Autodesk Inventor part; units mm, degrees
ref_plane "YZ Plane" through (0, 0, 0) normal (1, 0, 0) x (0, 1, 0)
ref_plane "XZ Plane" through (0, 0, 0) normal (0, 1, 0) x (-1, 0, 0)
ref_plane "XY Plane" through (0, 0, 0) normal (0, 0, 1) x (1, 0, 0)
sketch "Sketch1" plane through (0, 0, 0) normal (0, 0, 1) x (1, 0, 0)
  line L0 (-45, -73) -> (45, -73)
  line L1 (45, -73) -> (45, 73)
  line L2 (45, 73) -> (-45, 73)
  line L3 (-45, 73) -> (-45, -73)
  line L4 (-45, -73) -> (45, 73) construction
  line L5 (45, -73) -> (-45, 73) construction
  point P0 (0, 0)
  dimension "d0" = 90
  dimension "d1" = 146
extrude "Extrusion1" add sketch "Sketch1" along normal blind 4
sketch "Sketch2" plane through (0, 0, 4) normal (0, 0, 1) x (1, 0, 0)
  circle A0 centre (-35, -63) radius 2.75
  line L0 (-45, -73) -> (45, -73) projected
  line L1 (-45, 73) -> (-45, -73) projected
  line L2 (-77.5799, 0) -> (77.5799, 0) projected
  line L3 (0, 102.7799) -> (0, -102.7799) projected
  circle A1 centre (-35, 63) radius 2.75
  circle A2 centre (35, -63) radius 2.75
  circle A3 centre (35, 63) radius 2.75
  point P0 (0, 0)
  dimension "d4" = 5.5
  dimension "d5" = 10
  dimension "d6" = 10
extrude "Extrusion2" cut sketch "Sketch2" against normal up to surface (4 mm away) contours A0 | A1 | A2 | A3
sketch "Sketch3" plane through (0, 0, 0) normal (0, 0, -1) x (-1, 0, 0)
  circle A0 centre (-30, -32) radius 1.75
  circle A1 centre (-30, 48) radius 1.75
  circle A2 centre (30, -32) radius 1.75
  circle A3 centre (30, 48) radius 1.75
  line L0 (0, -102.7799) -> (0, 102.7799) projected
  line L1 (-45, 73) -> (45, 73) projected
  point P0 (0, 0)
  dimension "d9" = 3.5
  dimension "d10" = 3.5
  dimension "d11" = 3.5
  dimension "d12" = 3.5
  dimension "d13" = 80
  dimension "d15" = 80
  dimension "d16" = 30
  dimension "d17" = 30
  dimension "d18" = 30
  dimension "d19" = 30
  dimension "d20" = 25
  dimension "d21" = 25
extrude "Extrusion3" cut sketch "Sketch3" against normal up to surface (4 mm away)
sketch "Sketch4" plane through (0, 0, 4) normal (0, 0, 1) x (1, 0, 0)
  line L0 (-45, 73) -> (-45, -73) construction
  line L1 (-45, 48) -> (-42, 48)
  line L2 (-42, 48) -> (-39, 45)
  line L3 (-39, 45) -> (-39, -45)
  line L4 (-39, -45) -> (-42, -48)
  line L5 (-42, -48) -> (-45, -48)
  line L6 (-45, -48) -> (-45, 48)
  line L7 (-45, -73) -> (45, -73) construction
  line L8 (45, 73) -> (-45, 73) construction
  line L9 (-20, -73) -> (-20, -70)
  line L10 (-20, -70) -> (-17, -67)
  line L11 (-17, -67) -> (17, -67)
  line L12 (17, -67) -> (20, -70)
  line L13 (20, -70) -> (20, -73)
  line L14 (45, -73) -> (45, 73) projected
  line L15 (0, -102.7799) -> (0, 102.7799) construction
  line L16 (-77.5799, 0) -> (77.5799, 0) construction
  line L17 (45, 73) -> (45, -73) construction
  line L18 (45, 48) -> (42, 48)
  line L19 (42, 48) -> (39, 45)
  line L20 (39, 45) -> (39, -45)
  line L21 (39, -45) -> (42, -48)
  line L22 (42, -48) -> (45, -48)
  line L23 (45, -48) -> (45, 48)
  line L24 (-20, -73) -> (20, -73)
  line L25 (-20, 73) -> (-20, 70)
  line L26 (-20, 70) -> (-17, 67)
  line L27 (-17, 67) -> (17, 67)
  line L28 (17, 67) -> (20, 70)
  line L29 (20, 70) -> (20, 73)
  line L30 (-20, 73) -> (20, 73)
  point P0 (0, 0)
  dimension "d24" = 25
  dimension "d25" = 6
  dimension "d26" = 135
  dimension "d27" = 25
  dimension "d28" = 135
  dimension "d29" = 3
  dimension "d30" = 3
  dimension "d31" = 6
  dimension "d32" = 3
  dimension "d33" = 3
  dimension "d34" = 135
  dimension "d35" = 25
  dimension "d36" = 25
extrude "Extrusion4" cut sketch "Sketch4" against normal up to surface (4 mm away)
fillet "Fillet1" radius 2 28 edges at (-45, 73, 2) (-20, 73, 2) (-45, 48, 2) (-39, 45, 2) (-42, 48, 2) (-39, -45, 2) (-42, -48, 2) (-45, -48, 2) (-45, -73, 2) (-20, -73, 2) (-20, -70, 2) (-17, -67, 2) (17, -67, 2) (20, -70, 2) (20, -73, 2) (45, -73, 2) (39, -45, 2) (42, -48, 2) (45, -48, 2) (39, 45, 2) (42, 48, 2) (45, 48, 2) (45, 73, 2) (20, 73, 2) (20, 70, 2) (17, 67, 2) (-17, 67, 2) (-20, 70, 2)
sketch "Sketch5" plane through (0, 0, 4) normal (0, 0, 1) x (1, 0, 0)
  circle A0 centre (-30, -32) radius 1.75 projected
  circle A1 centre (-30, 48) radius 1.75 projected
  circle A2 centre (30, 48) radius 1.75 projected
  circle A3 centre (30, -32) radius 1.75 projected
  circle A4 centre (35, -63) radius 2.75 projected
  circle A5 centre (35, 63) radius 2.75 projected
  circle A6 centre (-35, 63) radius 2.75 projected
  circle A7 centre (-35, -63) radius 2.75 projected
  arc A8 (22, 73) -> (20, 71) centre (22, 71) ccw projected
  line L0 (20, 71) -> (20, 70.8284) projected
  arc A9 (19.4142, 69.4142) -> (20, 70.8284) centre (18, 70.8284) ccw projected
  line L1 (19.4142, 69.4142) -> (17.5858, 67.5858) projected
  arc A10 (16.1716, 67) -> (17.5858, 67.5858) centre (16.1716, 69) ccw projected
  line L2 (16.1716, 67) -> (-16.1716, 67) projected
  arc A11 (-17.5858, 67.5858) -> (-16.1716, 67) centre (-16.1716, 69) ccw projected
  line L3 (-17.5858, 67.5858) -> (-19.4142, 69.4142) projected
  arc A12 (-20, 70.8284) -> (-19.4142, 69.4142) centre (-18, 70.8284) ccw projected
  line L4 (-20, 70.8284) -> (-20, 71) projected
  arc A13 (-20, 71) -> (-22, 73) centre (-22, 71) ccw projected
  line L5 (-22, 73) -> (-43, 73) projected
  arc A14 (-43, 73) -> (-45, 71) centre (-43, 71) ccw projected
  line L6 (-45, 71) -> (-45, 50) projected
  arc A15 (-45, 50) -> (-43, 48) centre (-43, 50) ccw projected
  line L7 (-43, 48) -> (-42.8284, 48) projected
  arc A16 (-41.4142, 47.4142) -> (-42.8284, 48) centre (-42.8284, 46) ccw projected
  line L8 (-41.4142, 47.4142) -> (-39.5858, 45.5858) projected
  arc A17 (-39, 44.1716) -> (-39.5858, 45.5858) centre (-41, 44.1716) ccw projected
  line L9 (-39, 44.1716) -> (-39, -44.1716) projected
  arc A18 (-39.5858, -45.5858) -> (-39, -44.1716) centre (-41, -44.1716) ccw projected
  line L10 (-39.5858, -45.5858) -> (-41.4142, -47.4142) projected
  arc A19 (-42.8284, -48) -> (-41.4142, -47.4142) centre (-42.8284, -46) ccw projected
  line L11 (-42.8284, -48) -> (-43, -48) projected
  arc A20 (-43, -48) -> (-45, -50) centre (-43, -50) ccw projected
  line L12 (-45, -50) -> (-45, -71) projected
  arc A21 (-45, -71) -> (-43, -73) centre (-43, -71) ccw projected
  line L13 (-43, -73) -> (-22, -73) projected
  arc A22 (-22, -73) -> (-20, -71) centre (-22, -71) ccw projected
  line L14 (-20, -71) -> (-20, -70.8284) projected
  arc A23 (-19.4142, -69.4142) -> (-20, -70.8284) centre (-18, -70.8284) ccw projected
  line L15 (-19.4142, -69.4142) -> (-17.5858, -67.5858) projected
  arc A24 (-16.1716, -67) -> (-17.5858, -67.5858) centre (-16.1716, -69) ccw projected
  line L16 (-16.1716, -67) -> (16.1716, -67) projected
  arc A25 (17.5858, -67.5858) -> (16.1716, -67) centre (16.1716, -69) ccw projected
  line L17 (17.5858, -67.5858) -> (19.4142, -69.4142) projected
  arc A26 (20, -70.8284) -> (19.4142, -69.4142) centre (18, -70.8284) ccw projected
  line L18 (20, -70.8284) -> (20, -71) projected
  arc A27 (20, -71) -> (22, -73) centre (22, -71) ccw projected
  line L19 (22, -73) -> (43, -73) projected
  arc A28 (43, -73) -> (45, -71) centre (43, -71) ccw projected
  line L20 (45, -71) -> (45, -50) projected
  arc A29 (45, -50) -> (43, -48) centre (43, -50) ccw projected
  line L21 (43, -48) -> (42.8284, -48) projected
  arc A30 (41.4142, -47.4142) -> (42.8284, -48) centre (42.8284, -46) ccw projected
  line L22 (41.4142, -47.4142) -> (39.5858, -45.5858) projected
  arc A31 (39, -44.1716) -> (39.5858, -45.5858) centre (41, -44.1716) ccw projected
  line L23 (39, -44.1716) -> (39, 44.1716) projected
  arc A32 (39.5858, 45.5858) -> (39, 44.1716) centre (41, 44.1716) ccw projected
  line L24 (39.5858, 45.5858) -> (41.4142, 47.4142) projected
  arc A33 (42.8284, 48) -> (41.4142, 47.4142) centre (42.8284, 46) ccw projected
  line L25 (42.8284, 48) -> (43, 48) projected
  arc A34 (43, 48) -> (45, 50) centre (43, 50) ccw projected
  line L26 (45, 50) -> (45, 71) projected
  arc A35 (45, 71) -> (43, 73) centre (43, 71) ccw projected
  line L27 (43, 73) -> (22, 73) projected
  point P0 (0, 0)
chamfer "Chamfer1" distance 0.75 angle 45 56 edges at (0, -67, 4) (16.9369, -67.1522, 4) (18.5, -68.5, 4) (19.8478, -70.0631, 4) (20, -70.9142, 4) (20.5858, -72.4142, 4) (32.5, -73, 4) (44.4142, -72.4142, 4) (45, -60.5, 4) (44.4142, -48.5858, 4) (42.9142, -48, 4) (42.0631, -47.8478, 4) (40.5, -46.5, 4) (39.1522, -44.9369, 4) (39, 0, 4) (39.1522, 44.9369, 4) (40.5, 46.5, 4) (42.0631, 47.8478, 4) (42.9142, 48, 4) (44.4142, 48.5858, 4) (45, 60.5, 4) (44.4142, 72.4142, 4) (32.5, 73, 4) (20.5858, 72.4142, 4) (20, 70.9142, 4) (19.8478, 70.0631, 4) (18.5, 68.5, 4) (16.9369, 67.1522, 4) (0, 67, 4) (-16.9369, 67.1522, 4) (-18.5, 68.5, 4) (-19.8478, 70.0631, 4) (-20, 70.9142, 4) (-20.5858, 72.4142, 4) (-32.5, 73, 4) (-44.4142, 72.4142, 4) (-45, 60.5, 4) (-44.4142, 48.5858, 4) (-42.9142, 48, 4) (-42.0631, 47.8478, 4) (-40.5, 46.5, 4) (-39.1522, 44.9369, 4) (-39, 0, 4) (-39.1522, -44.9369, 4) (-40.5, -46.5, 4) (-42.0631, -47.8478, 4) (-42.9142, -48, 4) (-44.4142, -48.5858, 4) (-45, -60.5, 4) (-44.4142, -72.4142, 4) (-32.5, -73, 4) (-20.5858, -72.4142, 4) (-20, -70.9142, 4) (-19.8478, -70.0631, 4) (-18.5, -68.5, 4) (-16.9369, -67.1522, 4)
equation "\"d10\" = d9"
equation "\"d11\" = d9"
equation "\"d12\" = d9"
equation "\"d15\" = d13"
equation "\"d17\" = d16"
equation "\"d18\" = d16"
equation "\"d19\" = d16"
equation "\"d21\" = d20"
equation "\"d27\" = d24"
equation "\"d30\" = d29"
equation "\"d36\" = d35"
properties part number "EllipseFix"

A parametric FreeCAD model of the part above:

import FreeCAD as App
import Part
import Sketcher
Q = App.Units.Quantity


def edges_at(feature, points):
    """Names of the edges that pass closest to the given points."""
    edges = feature.Shape.Edges
    near = lambda p: min(range(len(edges)), key=lambda i: edges[i].distToShape(Part.Vertex(*p))[0])
    return sorted({f"Edge{near(p) + 1}" for p in points})

doc = App.newDocument("Part")
params = doc.addObject("Spreadsheet::Sheet", "Params")
for row, (alias, value) in enumerate([
    ("sketch1_width", "90 mm"),
    ("sketch1_height", "146 mm"),
    ("pad1_length", "4 mm"),
    ("sketch2_diameter", "5.5 mm"),
    ("pocket1_length", "4 mm"),
    ("sketch3_diameter", "3.5 mm"),
    ("pocket2_length", "4 mm"),
    ("sketch4_width", "3 mm"),
    ("sketch4_width2", "40 mm"),
    ("sketch4_height", "96 mm"),
    ("pocket3_length", "4 mm"),
    ("fillet_radius", "2 mm"),
    ("chamfer_size", "0.75 mm"),
], start=1):
    params.set(f"A{row}", alias)
    params.set(f"B{row}", "=" + value)
    params.setAlias(f"B{row}", alias)

body = doc.addObject("PartDesign::Body", "Body")

# Sketch on XY plane
sketch1 = body.newObject("Sketcher::SketchObject", "Sketch")
sketch1.AttachmentSupport = (doc.getObject("XY_Plane"), [""])
sketch1.MapMode = "FlatFace"
sketch1.addGeometry([
    Part.LineSegment(App.Vector(-45, 73, 0), App.Vector(-45, -73, 0)),
    Part.LineSegment(App.Vector(-45, -73, 0), App.Vector(45, -73, 0)),
    Part.LineSegment(App.Vector(45, -73, 0), App.Vector(45, 73, 0)),
    Part.LineSegment(App.Vector(45, 73, 0), App.Vector(-45, 73, 0)),
], False)
sketch1.addConstraint([
    Sketcher.Constraint("Coincident", 0, 2, 1, 1),
    Sketcher.Constraint("Coincident", 1, 2, 2, 1),
    Sketcher.Constraint("Coincident", 2, 2, 3, 1),
    Sketcher.Constraint("Coincident", 3, 2, 0, 1),
    Sketcher.Constraint("Vertical", 0),
    Sketcher.Constraint("Horizontal", 1),
    Sketcher.Constraint("Vertical", 2),
    Sketcher.Constraint("Horizontal", 3),
    Sketcher.Constraint("Symmetric", 0, 2, 2, 2, -1, 1),
    Sketcher.Constraint("DistanceX", 1, 1, 1, 2, Q("90 mm")),
    Sketcher.Constraint("DistanceY", 0, 2, 0, 1, Q("146 mm")),
])
sketch1.setExpression("Constraints[9]", "Params.sketch1_width")
sketch1.setExpression("Constraints[10]", "Params.sketch1_height")
pad1 = body.newObject("PartDesign::Pad", "Pad")
pad1.Profile = sketch1
pad1.setExpression("Length", "Params.pad1_length")

# Sketch on XY plane
sketch2 = body.newObject("Sketcher::SketchObject", "Sketch001")
sketch2.AttachmentSupport = (doc.getObject("XY_Plane"), [""])
sketch2.MapMode = "FlatFace"
sketch2.AttachmentOffset = App.Placement(App.Vector(0, 0, 4), App.Rotation())
sketch2.addGeometry([
    Part.Circle(App.Vector(-35, -63, 0), App.Vector(0, 0, 1), 2.75),
    Part.Circle(App.Vector(-35, 63, 0), App.Vector(0, 0, 1), 2.75),
    Part.Circle(App.Vector(35, -63, 0), App.Vector(0, 0, 1), 2.75),
    Part.Circle(App.Vector(35, 63, 0), App.Vector(0, 0, 1), 2.75),
], False)
sketch2.addConstraint([
    Sketcher.Constraint("Equal", 0, 1),
    Sketcher.Constraint("Equal", 1, 2),
    Sketcher.Constraint("Equal", 2, 3),
    Sketcher.Constraint("Symmetric", 1, 3, 2, 3, -1, 1),
    Sketcher.Constraint("Symmetric", 0, 3, 3, 3, -1, 1),
    Sketcher.Constraint("Symmetric", 0, 3, 2, 3, -2),
    Sketcher.Constraint("Diameter", 0, Q("5.5 mm")),
    Sketcher.Constraint("DistanceX", 0, 3, -1, 1, Q("35 mm")),
    Sketcher.Constraint("DistanceY", 0, 3, -1, 1, Q("63 mm")),
])
sketch2.setExpression("Constraints[6]", "Params.sketch2_diameter")
pocket1 = body.newObject("PartDesign::Pocket", "Pocket")
pocket1.Profile = sketch2
pocket1.setExpression("Length", "Params.pocket1_length")

# Sketch on XY plane
sketch3 = body.newObject("Sketcher::SketchObject", "Sketch002")
sketch3.AttachmentSupport = (doc.getObject("XY_Plane"), [""])
sketch3.MapMode = "FlatFace"
sketch3.addGeometry([
    Part.Circle(App.Vector(30, -32, 0), App.Vector(0, 0, 1), 1.75),
    Part.Circle(App.Vector(30, 48, 0), App.Vector(0, 0, 1), 1.75),
    Part.Circle(App.Vector(-30, -32, 0), App.Vector(0, 0, 1), 1.75),
    Part.Circle(App.Vector(-30, 48, 0), App.Vector(0, 0, 1), 1.75),
], False)
sketch3.addConstraint([
    Sketcher.Constraint("Equal", 0, 1),
    Sketcher.Constraint("Equal", 1, 2),
    Sketcher.Constraint("Equal", 2, 3),
    Sketcher.Constraint("Symmetric", 0, 3, 2, 3, -2),
    Sketcher.Constraint("Symmetric", 1, 3, 3, 3, -2),
    Sketcher.Constraint("Vertical", 0, 3, 1, 3),
    Sketcher.Constraint("Diameter", 0, Q("3.5 mm")),
    Sketcher.Constraint("DistanceX", -1, 1, 0, 3, Q("30 mm")),
    Sketcher.Constraint("DistanceY", 0, 3, 1, 3, Q("80 mm")),
    Sketcher.Constraint("DistanceY", 0, 3, -1, 1, Q("32 mm")),
])
sketch3.setExpression("Constraints[6]", "Params.sketch3_diameter")
pocket2 = body.newObject("PartDesign::Pocket", "Pocket001")
pocket2.Profile = sketch3
pocket2.setExpression("Length", "Params.pocket2_length")
pocket2.Reversed = True

# Sketch on XY plane
sketch4 = body.newObject("Sketcher::SketchObject", "Sketch003")
sketch4.AttachmentSupport = (doc.getObject("XY_Plane"), [""])
sketch4.MapMode = "FlatFace"
sketch4.AttachmentOffset = App.Placement(App.Vector(0, 0, 4), App.Rotation())
sketch4.addGeometry([
    Part.LineSegment(App.Vector(-42, 48, 0), App.Vector(-45, 48, 0)),  # 0
    Part.LineSegment(App.Vector(-45, 48, 0), App.Vector(-45, -48, 0)),  # 1
    Part.LineSegment(App.Vector(-45, -48, 0), App.Vector(-42, -48, 0)),  # 2
    Part.LineSegment(App.Vector(-42, -48, 0), App.Vector(-39, -45, 0)),  # 3
    Part.LineSegment(App.Vector(-39, -45, 0), App.Vector(-39, 45, 0)),  # 4
    Part.LineSegment(App.Vector(-39, 45, 0), App.Vector(-42, 48, 0)),  # 5
    Part.LineSegment(App.Vector(-20, -70, 0), App.Vector(-20, -73, 0)),  # 6
    Part.LineSegment(App.Vector(-20, -73, 0), App.Vector(20, -73, 0)),  # 7
    Part.LineSegment(App.Vector(20, -73, 0), App.Vector(20, -70, 0)),  # 8
    Part.LineSegment(App.Vector(20, -70, 0), App.Vector(17, -67, 0)),  # 9
    Part.LineSegment(App.Vector(17, -67, 0), App.Vector(-17, -67, 0)),  # 10
    Part.LineSegment(App.Vector(-17, -67, 0), App.Vector(-20, -70, 0)),  # 11
    Part.LineSegment(App.Vector(42, -48, 0), App.Vector(45, -48, 0)),  # 12
    Part.LineSegment(App.Vector(45, -48, 0), App.Vector(45, 48, 0)),  # 13
    Part.LineSegment(App.Vector(45, 48, 0), App.Vector(42, 48, 0)),  # 14
    Part.LineSegment(App.Vector(42, 48, 0), App.Vector(39, 45, 0)),  # 15
    Part.LineSegment(App.Vector(39, 45, 0), App.Vector(39, -45, 0)),  # 16
    Part.LineSegment(App.Vector(39, -45, 0), App.Vector(42, -48, 0)),  # 17
    Part.LineSegment(App.Vector(20, 73, 0), App.Vector(-20, 73, 0)),  # 18
    Part.LineSegment(App.Vector(-20, 73, 0), App.Vector(-20, 70, 0)),  # 19
    Part.LineSegment(App.Vector(-20, 70, 0), App.Vector(-17, 67, 0)),  # 20
    Part.LineSegment(App.Vector(-17, 67, 0), App.Vector(17, 67, 0)),  # 21
    Part.LineSegment(App.Vector(17, 67, 0), App.Vector(20, 70, 0)),  # 22
    Part.LineSegment(App.Vector(20, 70, 0), App.Vector(20, 73, 0)),  # 23
], False)
sketch4.addConstraint([
    Sketcher.Constraint("Coincident", 0, 2, 1, 1),
    Sketcher.Constraint("Coincident", 1, 2, 2, 1),
    Sketcher.Constraint("Coincident", 2, 2, 3, 1),
    Sketcher.Constraint("Coincident", 3, 2, 4, 1),
    Sketcher.Constraint("Coincident", 4, 2, 5, 1),
    Sketcher.Constraint("Coincident", 5, 2, 0, 1),
    Sketcher.Constraint("Coincident", 6, 2, 7, 1),
    Sketcher.Constraint("Coincident", 7, 2, 8, 1),
    Sketcher.Constraint("Coincident", 8, 2, 9, 1),
    Sketcher.Constraint("Coincident", 9, 2, 10, 1),
    Sketcher.Constraint("Coincident", 10, 2, 11, 1),
    Sketcher.Constraint("Coincident", 11, 2, 6, 1),
    Sketcher.Constraint("Coincident", 12, 2, 13, 1),
    Sketcher.Constraint("Coincident", 13, 2, 14, 1),
    Sketcher.Constraint("Coincident", 14, 2, 15, 1),
    Sketcher.Constraint("Coincident", 15, 2, 16, 1),
    Sketcher.Constraint("Coincident", 16, 2, 17, 1),
    Sketcher.Constraint("Coincident", 17, 2, 12, 1),
    Sketcher.Constraint("Coincident", 18, 2, 19, 1),
    Sketcher.Constraint("Coincident", 19, 2, 20, 1),
    Sketcher.Constraint("Coincident", 20, 2, 21, 1),
    Sketcher.Constraint("Coincident", 21, 2, 22, 1),
    Sketcher.Constraint("Coincident", 22, 2, 23, 1),
    Sketcher.Constraint("Coincident", 23, 2, 18, 1),
    Sketcher.Constraint("Horizontal", 0),
    Sketcher.Constraint("Vertical", 1),
    Sketcher.Constraint("Horizontal", 2),
    Sketcher.Constraint("Vertical", 4),
    Sketcher.Constraint("Vertical", 6),
    Sketcher.Constraint("Horizontal", 7),
    Sketcher.Constraint("Vertical", 8),
    Sketcher.Constraint("Horizontal", 10),
    Sketcher.Constraint("Horizontal", 12),
    Sketcher.Constraint("Vertical", 13),
    Sketcher.Constraint("Horizontal", 14),
    Sketcher.Constraint("Vertical", 16),
    Sketcher.Constraint("Horizontal", 18),
    Sketcher.Constraint("Vertical", 19),
    Sketcher.Constraint("Horizontal", 21),
    Sketcher.Constraint("Vertical", 23),
    Sketcher.Constraint("Symmetric", 0, 2, 12, 2, -1, 1),
    Sketcher.Constraint("Symmetric", 2, 2, 14, 2, -1, 1),
    Sketcher.Constraint("Symmetric", 3, 2, 15, 2, -1, 1),
    Sketcher.Constraint("Symmetric", 7, 2, 18, 2, -1, 1),
    Sketcher.Constraint("Symmetric", 9, 2, 20, 2, -1, 1),
    Sketcher.Constraint("Symmetric", 11, 2, 22, 2, -1, 1),
    Sketcher.Constraint("Symmetric", 8, 2, 11, 2, -2),
    Sketcher.Constraint("Symmetric", 5, 2, 14, 2, -2),
    Sketcher.Constraint("Perpendicular", 3, 5),
    Sketcher.Constraint("Parallel", 5, 9),
    Sketcher.Constraint("Perpendicular", 9, 11),
    Sketcher.Constraint("Perpendicular", 15, 17),
    Sketcher.Constraint("Parallel", 17, 20),
    Sketcher.Constraint("Perpendicular", 20, 22),
    Sketcher.Constraint("Horizontal", 4, 2, 15, 2),
    Sketcher.Constraint("Horizontal", 3, 2, 16, 2),
    Sketcher.Constraint("Equal", 14, 6),
    Sketcher.Constraint("Equal", 5, 9),
    Sketcher.Constraint("DistanceX", 0, 2, 0, 1, Q("3 mm")),
    Sketcher.Constraint("DistanceX", 2, 2, 3, 2, Q("3 mm")),
    Sketcher.Constraint("DistanceY", 6, 2, 2, 2, Q("25 mm")),
    Sketcher.Constraint("DistanceX", 1, 2, 6, 2, Q("25 mm")),
    Sketcher.Constraint("DistanceX", 7, 1, 7, 2, Q("40 mm")),
    Sketcher.Constraint("DistanceY", 1, 2, 1, 1, Q("96 mm")),
])
sketch4.setExpression("Constraints[58]", "Params.sketch4_width")
sketch4.setExpression("Constraints[62]", "Params.sketch4_width2")
sketch4.setExpression("Constraints[63]", "Params.sketch4_height")
pocket3 = body.newObject("PartDesign::Pocket", "Pocket002")
pocket3.Profile = sketch4
pocket3.setExpression("Length", "Params.pocket3_length")
doc.recompute()

fillet = body.newObject("PartDesign::Fillet", "Fillet")
fillet.Base = (pocket3, edges_at(pocket3, [
    (-45, 73, 2),
    (-20, 73, 2),
    (-45, 48, 2),
    (-39, 45, 2),
    (-42, 48, 2),
    (-39, -45, 2),
    (-42, -48, 2),
    (-45, -48, 2),
    (-45, -73, 2),
    (-20, -73, 2),
    (-20, -70, 2),
    (-17, -67, 2),
    (17, -67, 2),
    (20, -70, 2),
    (20, -73, 2),
    (45, -73, 2),
    (39, -45, 2),
    (42, -48, 2),
    (45, -48, 2),
    (39, 45, 2),
    (42, 48, 2),
    (45, 48, 2),
    (45, 73, 2),
    (20, 73, 2),
    (20, 70, 2),
    (17, 67, 2),
    (-17, 67, 2),
    (-20, 70, 2),
]))
fillet.setExpression("Radius", "Params.fillet_radius")
doc.recompute()

chamfer = body.newObject("PartDesign::Chamfer", "Chamfer")
chamfer.Base = (fillet, edges_at(fillet, [
    (0, -67, 4),
    (16.937, -67.152, 4),
    (18.5, -68.5, 4),
    (19.848, -70.063, 4),
    (20, -70.914, 4),
    (20.586, -72.414, 4),
    (32.5, -73, 4),
    (44.414, -72.414, 4),
    (45, -60.5, 4),
    (44.414, -48.586, 4),
    (42.914, -48, 4),
    (42.063, -47.848, 4),
    (40.5, -46.5, 4),
    (39.152, -44.937, 4),
    (39, 0, 4),
    (39.152, 44.937, 4),
    (40.5, 46.5, 4),
    (42.063, 47.848, 4),
    (42.914, 48, 4),
    (44.414, 48.586, 4),
    (45, 60.5, 4),
    (44.414, 72.414, 4),
    (32.5, 73, 4),
    (20.586, 72.414, 4),
    (20, 70.914, 4),
    (19.848, 70.063, 4),
    (18.5, 68.5, 4),
    (16.937, 67.152, 4),
    (0, 67, 4),
    (-16.937, 67.152, 4),
    (-18.5, 68.5, 4),
    (-19.848, 70.063, 4),
    (-20, 70.914, 4),
    (-20.586, 72.414, 4),
    (-32.5, 73, 4),
    (-44.414, 72.414, 4),
    (-45, 60.5, 4),
    (-44.414, 48.586, 4),
    (-42.914, 48, 4),
    (-42.063, 47.848, 4),
    (-40.5, 46.5, 4),
    (-39.152, 44.937, 4),
    (-39, 0, 4),
    (-39.152, -44.937, 4),
    (-40.5, -46.5, 4),
    (-42.063, -47.848, 4),
    (-42.914, -48, 4),
    (-44.414, -48.586, 4),
    (-45, -60.5, 4),
    (-44.414, -72.414, 4),
    (-32.5, -73, 4),
    (-20.586, -72.414, 4),
    (-20, -70.914, 4),
    (-19.848, -70.063, 4),
    (-18.5, -68.5, 4),
    (-16.937, -67.152, 4),
]))
chamfer.setExpression("Size", "Params.chamfer_size")

doc.recompute()
